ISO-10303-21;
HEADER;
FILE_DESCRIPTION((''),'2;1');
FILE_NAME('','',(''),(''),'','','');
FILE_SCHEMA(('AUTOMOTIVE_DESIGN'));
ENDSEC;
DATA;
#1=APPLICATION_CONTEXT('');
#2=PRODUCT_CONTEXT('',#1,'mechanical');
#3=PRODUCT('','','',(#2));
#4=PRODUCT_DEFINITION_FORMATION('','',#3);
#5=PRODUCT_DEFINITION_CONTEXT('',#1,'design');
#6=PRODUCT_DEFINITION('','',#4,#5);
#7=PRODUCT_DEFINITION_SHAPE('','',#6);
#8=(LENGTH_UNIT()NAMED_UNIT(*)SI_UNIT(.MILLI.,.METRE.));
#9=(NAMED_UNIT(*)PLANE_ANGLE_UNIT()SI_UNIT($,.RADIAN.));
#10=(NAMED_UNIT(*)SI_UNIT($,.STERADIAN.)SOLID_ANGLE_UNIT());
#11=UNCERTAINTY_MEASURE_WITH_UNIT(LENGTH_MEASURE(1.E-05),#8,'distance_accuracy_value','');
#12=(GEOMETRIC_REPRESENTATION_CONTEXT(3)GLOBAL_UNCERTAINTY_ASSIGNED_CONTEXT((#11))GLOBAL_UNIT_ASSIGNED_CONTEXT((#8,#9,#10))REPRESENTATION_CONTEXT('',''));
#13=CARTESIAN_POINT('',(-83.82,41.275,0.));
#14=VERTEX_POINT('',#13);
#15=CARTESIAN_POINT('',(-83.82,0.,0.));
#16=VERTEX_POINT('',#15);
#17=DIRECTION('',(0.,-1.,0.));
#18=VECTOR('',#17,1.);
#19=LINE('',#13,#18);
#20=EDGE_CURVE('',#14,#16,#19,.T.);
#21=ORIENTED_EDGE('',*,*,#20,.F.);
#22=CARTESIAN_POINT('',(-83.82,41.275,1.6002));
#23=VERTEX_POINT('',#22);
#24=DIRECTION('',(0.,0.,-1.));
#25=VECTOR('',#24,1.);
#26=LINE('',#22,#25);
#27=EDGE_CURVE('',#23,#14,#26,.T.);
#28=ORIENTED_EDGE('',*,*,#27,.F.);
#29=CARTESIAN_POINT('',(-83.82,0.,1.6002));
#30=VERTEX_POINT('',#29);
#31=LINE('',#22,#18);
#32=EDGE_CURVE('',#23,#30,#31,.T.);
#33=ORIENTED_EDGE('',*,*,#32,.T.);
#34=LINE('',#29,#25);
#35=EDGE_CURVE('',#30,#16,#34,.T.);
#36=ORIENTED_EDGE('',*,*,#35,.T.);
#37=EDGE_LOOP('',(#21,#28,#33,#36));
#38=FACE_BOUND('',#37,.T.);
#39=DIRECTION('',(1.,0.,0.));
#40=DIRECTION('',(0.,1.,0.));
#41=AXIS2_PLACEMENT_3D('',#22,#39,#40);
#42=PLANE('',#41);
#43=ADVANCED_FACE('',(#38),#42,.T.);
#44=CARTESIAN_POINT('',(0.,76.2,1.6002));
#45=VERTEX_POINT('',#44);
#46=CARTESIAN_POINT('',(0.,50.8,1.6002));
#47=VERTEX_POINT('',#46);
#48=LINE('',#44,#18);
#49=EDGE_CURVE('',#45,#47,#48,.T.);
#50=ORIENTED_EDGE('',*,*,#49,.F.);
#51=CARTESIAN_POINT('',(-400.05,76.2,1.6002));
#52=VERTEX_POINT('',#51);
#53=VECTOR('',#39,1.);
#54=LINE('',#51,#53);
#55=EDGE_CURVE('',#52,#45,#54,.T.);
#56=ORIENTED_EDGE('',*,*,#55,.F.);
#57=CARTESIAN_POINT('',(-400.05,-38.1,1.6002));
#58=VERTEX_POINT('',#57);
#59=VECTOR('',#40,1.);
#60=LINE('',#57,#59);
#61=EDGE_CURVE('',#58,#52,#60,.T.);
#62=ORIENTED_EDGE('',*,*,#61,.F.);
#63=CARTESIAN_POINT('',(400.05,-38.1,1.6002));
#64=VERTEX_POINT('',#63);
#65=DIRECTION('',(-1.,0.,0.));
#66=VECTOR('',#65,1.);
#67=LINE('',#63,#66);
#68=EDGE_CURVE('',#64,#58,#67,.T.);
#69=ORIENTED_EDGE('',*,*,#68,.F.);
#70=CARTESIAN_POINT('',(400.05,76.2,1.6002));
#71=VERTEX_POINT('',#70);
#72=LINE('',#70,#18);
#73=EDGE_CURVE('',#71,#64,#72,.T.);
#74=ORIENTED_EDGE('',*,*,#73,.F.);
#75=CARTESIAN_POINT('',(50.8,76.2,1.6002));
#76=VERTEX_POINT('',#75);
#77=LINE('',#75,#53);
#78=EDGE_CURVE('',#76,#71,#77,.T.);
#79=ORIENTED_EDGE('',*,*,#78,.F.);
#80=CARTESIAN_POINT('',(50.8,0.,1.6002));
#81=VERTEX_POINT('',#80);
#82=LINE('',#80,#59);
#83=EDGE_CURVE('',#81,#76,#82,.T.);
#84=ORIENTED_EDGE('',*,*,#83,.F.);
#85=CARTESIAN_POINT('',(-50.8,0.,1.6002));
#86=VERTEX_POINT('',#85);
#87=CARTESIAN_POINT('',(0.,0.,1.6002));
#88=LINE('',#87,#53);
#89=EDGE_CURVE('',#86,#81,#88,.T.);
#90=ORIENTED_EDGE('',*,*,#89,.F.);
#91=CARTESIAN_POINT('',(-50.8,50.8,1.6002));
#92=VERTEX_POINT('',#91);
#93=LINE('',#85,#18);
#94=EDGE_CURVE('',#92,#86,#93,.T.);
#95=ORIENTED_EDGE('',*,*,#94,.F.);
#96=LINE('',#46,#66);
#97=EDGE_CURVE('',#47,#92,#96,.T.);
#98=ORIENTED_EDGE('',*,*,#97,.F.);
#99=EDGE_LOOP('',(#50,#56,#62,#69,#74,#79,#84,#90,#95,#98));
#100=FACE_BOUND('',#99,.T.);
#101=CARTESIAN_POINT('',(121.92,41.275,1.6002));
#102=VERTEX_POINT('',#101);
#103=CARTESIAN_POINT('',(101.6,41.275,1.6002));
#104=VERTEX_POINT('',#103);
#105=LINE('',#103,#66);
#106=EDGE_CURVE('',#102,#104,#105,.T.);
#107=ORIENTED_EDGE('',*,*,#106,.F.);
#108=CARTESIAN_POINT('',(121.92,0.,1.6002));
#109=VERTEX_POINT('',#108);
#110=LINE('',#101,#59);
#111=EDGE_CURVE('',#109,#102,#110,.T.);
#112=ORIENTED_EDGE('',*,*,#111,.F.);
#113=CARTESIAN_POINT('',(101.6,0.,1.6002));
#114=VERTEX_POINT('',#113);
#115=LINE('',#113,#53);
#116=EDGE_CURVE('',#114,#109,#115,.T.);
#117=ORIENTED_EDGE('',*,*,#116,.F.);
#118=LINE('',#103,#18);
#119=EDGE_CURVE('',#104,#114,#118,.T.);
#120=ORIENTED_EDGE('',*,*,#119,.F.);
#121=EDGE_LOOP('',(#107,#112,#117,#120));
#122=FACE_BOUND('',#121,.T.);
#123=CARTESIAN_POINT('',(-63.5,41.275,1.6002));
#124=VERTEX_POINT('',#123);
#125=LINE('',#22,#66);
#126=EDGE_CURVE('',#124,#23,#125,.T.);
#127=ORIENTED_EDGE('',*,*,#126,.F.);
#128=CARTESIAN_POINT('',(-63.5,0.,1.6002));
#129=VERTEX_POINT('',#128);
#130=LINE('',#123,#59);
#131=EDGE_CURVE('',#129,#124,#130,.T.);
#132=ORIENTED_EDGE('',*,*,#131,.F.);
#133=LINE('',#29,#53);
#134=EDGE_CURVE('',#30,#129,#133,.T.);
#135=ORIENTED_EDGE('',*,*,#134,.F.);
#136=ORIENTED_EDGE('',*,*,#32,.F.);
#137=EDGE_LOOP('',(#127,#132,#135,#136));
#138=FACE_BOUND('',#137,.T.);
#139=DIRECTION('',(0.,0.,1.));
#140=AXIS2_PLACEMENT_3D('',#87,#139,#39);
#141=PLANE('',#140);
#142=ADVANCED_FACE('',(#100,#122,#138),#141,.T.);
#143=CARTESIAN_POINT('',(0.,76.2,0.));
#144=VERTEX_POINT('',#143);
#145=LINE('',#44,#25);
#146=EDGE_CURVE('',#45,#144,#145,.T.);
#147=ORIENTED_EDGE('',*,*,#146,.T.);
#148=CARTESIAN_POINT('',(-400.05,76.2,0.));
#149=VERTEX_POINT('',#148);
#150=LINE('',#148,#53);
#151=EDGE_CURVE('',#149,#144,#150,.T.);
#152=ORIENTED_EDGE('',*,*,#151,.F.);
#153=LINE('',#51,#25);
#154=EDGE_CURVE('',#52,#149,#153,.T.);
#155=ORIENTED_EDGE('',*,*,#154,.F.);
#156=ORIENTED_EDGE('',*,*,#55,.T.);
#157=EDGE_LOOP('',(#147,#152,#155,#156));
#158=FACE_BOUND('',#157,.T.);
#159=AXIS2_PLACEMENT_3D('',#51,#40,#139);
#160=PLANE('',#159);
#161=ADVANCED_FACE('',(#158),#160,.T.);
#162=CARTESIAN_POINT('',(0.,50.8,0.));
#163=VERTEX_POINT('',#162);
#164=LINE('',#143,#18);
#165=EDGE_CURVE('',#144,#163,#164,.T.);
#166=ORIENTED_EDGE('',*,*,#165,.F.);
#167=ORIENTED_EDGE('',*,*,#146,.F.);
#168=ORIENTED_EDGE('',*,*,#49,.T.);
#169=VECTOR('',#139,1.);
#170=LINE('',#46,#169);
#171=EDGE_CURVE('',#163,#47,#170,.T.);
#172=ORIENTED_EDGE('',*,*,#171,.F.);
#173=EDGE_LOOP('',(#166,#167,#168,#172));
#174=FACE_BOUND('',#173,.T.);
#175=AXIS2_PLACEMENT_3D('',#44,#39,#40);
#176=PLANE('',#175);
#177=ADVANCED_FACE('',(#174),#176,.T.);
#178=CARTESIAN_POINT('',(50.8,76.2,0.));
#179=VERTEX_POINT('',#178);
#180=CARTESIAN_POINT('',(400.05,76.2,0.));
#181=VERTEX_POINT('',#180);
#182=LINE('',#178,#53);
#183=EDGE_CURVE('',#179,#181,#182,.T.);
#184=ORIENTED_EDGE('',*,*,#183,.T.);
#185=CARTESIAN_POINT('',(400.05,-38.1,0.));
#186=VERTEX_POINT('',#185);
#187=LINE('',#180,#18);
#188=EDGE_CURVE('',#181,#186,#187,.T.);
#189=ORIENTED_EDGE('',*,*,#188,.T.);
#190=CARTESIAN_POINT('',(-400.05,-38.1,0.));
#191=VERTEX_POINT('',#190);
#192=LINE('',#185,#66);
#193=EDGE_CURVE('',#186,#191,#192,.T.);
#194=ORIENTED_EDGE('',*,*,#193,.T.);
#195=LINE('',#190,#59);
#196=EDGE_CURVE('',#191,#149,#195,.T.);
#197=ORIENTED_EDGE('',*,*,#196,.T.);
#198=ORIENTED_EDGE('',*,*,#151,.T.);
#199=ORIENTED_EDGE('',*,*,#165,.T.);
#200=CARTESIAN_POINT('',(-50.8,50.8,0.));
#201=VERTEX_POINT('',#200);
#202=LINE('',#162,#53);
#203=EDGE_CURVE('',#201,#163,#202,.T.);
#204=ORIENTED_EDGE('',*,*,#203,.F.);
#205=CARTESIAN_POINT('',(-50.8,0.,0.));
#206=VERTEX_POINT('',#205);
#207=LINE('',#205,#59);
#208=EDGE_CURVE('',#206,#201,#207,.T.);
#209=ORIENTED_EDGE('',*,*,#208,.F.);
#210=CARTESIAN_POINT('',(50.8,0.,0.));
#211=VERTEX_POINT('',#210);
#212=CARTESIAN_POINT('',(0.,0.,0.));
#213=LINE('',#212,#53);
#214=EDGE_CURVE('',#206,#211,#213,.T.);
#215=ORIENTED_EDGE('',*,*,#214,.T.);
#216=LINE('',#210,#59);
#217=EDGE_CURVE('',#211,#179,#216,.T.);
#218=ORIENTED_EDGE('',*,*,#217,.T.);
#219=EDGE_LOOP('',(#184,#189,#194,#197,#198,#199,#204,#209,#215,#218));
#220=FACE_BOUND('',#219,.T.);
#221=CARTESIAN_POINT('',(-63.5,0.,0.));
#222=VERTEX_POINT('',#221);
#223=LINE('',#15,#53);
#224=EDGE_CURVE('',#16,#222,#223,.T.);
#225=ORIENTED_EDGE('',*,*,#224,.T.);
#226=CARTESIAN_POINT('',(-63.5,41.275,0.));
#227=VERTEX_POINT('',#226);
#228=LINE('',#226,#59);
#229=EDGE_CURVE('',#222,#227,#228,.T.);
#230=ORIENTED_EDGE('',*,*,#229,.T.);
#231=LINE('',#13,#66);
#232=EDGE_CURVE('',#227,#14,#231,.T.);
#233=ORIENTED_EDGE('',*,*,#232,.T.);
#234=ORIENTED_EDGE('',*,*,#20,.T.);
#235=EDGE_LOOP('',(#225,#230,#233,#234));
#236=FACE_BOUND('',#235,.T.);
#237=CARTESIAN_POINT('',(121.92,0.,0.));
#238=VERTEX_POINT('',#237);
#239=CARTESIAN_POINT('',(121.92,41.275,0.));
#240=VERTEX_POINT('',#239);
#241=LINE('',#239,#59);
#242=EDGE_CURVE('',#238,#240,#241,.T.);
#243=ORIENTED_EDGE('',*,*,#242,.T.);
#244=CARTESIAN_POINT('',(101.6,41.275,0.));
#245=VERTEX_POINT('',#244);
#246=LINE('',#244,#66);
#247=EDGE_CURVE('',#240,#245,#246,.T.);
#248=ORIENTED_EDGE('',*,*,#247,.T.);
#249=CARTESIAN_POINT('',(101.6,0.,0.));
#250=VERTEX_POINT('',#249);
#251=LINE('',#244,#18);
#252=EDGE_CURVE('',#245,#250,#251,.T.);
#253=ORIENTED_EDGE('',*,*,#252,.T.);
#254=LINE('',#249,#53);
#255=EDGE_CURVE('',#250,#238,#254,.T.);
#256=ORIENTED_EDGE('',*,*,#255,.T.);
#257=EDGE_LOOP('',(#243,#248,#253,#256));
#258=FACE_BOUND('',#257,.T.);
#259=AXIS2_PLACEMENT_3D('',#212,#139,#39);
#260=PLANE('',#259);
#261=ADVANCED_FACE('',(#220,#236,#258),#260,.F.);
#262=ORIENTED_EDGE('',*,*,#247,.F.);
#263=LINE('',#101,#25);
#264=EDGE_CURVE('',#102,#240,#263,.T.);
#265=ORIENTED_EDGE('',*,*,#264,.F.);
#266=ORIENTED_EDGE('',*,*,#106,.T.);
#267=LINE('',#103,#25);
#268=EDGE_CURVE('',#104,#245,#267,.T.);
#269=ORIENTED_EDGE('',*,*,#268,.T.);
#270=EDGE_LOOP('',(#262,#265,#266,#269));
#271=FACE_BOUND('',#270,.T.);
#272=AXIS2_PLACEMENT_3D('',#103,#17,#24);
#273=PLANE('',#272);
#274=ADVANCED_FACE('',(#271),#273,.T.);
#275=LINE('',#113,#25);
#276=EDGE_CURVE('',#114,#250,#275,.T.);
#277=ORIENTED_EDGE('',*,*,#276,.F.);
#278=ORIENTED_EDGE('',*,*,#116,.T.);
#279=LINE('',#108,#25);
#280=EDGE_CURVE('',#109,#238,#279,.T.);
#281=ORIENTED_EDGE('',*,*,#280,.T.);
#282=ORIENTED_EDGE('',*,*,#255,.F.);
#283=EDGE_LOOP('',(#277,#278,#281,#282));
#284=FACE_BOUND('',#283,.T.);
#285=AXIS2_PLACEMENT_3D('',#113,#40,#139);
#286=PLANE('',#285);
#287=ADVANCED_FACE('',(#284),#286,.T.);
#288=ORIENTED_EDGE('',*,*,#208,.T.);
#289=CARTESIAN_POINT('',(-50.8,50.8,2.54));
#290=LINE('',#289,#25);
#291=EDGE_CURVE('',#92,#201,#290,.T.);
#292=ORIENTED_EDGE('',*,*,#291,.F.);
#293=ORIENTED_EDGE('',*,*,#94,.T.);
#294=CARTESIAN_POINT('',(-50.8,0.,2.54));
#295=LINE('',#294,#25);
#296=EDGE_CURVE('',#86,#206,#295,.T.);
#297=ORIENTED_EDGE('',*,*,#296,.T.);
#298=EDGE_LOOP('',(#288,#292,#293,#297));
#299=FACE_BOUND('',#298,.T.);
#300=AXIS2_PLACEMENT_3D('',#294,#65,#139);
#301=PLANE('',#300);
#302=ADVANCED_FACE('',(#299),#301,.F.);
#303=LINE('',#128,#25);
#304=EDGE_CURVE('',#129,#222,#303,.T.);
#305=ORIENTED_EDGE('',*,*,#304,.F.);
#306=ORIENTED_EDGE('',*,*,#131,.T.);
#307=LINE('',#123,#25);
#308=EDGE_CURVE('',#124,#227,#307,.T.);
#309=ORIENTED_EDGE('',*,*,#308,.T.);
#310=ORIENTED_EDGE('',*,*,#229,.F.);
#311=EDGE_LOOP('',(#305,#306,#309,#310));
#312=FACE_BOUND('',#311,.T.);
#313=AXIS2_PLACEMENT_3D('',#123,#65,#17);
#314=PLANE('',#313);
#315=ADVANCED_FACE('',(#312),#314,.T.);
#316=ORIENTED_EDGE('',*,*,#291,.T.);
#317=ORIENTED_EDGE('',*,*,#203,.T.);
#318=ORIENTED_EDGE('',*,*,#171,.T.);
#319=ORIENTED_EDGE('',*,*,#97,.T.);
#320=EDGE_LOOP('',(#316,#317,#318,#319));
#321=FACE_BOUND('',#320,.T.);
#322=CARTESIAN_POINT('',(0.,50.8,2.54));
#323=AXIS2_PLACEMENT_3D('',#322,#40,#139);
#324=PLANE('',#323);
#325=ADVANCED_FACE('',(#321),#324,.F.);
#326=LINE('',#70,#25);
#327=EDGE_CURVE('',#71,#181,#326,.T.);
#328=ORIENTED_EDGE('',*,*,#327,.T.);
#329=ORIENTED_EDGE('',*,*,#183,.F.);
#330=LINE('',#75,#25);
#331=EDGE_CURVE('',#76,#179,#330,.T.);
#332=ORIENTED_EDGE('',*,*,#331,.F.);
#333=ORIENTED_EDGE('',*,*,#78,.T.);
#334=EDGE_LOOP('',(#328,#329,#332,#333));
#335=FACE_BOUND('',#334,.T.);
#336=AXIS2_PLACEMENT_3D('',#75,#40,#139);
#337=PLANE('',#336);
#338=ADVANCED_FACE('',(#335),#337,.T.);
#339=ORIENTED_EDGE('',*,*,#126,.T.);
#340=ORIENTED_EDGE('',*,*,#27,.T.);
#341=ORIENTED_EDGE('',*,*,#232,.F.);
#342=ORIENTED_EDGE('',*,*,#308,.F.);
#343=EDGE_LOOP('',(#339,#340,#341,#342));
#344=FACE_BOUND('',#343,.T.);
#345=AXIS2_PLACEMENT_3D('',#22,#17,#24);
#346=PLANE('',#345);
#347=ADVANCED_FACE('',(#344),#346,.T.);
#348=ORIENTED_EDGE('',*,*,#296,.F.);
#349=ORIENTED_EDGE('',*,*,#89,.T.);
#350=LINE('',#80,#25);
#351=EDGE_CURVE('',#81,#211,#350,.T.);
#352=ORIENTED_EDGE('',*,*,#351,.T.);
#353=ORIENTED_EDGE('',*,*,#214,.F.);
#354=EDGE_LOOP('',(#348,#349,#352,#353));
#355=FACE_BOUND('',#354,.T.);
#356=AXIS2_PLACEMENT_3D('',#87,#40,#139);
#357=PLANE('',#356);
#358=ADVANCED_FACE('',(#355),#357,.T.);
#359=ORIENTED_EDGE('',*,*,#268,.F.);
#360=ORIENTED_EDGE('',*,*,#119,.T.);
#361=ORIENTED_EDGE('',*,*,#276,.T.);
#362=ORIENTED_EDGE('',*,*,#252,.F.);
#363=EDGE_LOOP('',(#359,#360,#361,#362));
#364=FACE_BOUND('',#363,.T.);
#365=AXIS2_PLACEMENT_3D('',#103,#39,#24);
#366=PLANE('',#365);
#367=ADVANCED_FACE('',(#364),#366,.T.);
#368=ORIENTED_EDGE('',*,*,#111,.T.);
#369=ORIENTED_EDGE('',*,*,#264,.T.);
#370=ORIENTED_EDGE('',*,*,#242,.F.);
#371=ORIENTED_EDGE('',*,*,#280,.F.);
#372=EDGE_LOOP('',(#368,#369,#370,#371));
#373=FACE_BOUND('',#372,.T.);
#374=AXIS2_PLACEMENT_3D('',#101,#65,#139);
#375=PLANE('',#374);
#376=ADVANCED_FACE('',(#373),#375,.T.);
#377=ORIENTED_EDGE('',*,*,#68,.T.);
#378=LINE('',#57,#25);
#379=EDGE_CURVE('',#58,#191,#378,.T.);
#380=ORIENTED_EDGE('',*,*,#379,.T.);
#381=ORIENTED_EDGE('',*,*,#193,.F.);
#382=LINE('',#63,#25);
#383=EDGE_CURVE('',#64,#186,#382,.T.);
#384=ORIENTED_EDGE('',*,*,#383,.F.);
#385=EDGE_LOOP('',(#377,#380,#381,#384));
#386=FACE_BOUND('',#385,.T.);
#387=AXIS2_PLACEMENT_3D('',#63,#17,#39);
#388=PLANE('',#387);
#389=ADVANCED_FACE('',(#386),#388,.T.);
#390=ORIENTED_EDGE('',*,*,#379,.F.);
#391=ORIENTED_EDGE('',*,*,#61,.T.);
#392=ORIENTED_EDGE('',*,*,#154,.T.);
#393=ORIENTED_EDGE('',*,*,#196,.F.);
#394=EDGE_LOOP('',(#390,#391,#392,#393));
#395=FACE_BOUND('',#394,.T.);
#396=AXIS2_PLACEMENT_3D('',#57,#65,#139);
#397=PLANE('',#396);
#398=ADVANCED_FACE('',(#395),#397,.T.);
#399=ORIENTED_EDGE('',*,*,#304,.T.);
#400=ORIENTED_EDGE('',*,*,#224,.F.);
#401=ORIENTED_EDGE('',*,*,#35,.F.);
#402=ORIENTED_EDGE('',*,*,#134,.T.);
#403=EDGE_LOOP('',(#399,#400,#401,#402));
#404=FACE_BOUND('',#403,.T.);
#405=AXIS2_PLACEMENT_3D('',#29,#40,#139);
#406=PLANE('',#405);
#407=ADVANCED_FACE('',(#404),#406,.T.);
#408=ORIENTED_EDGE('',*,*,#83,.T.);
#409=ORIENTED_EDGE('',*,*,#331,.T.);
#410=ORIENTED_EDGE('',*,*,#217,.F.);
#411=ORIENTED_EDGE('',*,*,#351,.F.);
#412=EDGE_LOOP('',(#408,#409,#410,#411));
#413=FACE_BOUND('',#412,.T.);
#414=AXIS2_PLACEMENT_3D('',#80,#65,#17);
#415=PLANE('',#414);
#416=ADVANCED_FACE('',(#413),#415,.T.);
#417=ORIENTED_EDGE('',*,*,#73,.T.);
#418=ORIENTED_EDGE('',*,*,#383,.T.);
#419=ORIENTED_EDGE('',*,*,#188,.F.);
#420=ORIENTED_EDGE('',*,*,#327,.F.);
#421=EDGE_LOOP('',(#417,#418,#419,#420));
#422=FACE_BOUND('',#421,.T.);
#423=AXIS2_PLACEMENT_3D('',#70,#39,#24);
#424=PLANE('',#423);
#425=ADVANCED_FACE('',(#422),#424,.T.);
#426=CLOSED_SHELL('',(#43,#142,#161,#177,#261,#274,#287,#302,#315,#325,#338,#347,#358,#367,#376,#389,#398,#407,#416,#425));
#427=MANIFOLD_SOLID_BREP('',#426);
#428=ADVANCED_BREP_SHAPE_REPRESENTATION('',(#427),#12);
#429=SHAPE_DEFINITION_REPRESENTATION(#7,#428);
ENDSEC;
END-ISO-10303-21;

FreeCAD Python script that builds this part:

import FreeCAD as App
import Part
import Sketcher
from FreeCAD import Vector
Q = App.Units.Quantity

doc = App.newDocument("Part")
body = doc.addObject("PartDesign::Body", "Body")

# Sketch on XY plane
sketch1 = body.newObject("Sketcher::SketchObject", "Sketch")
sketch1.AttachmentSupport = (doc.getObject("XY_Plane"), [""])
sketch1.MapMode = "FlatFace"
sketch1.addGeometry([
    Part.LineSegment(Vector(50.8, 0, 0), Vector(0, 0, 0)),  # 0
    Part.LineSegment(Vector(0, 0, 0), Vector(0, 76.2, 0)),  # 1
    Part.LineSegment(Vector(0, 76.2, 0), Vector(-400.05, 76.2, 0)),  # 2
    Part.LineSegment(Vector(-400.05, 76.2, 0), Vector(-400.05, -38.1, 0)),  # 3
    Part.LineSegment(Vector(-400.05, -38.1, 0), Vector(400.05, -38.1, 0)),  # 4
    Part.LineSegment(Vector(400.05, -38.1, 0), Vector(400.05, 76.2, 0)),  # 5
    Part.LineSegment(Vector(400.05, 76.2, 0), Vector(50.8, 76.2, 0)),  # 6
    Part.LineSegment(Vector(50.8, 76.2, 0), Vector(50.8, 0, 0)),  # 7
], False)
sketch1.addConstraint([
    Sketcher.Constraint("Coincident", 0, 2, 1, 1),
    Sketcher.Constraint("Coincident", 1, 2, 2, 1),
    Sketcher.Constraint("Coincident", 2, 2, 3, 1),
    Sketcher.Constraint("Coincident", 3, 2, 4, 1),
    Sketcher.Constraint("Coincident", 4, 2, 5, 1),
    Sketcher.Constraint("Coincident", 5, 2, 6, 1),
    Sketcher.Constraint("Coincident", 6, 2, 7, 1),
    Sketcher.Constraint("Coincident", 7, 2, 0, 1),
    Sketcher.Constraint("Horizontal", 0),
    Sketcher.Constraint("Vertical", 1),
    Sketcher.Constraint("Horizontal", 2),
    Sketcher.Constraint("Vertical", 3),
    Sketcher.Constraint("Horizontal", 4),
    Sketcher.Constraint("Vertical", 5),
    Sketcher.Constraint("Horizontal", 6),
    Sketcher.Constraint("Vertical", 7),
    Sketcher.Constraint("Coincident", 0, 2, -1, 1),
    Sketcher.Constraint("Symmetric", 2, 2, 5, 2, -2),
    Sketcher.Constraint("DistanceX", 0, 2, 0, 1, Q("2 in")),
    Sketcher.Constraint("DistanceY", 1, 1, 1, 2, Q("3 in")),
    Sketcher.Constraint("DistanceX", 4, 1, 4, 2, Q("31.5 in")),
    Sketcher.Constraint("DistanceY", 3, 2, 3, 1, Q("4.5 in")),
])
pad1 = body.newObject("PartDesign::Pad", "Pad")
pad1.Profile = sketch1
pad1.Length = Q("0.063 in")

# Sketch on XY plane
sketch2 = body.newObject("Sketcher::SketchObject", "Sketch001")
sketch2.AttachmentSupport = (doc.getObject("XY_Plane"), [""])
sketch2.MapMode = "FlatFace"
sketch2.addGeometry([
    Part.LineSegment(Vector(-83.82, 41.275, 0), Vector(-83.82, 0, 0)),  # 0
    Part.LineSegment(Vector(-83.82, 0, 0), Vector(-63.5, 0, 0)),  # 1
    Part.LineSegment(Vector(-63.5, 0, 0), Vector(-63.5, 41.275, 0)),  # 2
    Part.LineSegment(Vector(-63.5, 41.275, 0), Vector(-83.82, 41.275, 0)),  # 3
    Part.LineSegment(Vector(101.6, 41.275, 0), Vector(101.6, 0, 0)),  # 4
    Part.LineSegment(Vector(101.6, 0, 0), Vector(121.92, 0, 0)),  # 5
    Part.LineSegment(Vector(121.92, 0, 0), Vector(121.92, 41.275, 0)),  # 6
    Part.LineSegment(Vector(121.92, 41.275, 0), Vector(101.6, 41.275, 0)),  # 7
], False)
sketch2.addConstraint([
    Sketcher.Constraint("Coincident", 0, 2, 1, 1),
    Sketcher.Constraint("Coincident", 1, 2, 2, 1),
    Sketcher.Constraint("Coincident", 2, 2, 3, 1),
    Sketcher.Constraint("Coincident", 3, 2, 0, 1),
    Sketcher.Constraint("Coincident", 4, 2, 5, 1),
    Sketcher.Constraint("Coincident", 5, 2, 6, 1),
    Sketcher.Constraint("Coincident", 6, 2, 7, 1),
    Sketcher.Constraint("Coincident", 7, 2, 4, 1),
    Sketcher.Constraint("Vertical", 0),
    Sketcher.Constraint("Horizontal", 1),
    Sketcher.Constraint("Vertical", 2),
    Sketcher.Constraint("Horizontal", 3),
    Sketcher.Constraint("Vertical", 4),
    Sketcher.Constraint("Horizontal", 5),
    Sketcher.Constraint("Vertical", 6),
    Sketcher.Constraint("Horizontal", 7),
    Sketcher.Constraint("PointOnObject", 0, 2, -1),
    Sketcher.Constraint("PointOnObject", 4, 2, -1),
    Sketcher.Constraint("Horizontal", 3, 2, 6, 2),
    Sketcher.Constraint("Equal", 3, 5),
    Sketcher.Constraint("DistanceX", 1, 1, 1, 2, Q("0.8 in")),
    Sketcher.Constraint("DistanceX", -1, 1, 4, 2, Q("4 in")),
    Sketcher.Constraint("DistanceX", 0, 2, -1, 1, Q("3.3 in")),
    Sketcher.Constraint("DistanceY", 0, 2, 0, 1, Q("1.625 in")),
])
pocket1 = body.newObject("PartDesign::Pocket", "Pocket")
pocket1.Profile = sketch2
pocket1.Type = "ThroughAll"
pocket1.Reversed = True

# Sketch on XY plane
sketch3 = body.newObject("Sketcher::SketchObject", "Sketch002")
sketch3.AttachmentSupport = (doc.getObject("XY_Plane"), [""])
sketch3.MapMode = "FlatFace"
sketch3.addGeometry([
    Part.LineSegment(Vector(0, 50.8, 0), Vector(0, 0, 0)),
    Part.LineSegment(Vector(0, 0, 0), Vector(-50.8, 0, 0)),
    Part.LineSegment(Vector(-50.8, 0, 0), Vector(-50.8, 50.8, 0)),
    Part.LineSegment(Vector(-50.8, 50.8, 0), Vector(0, 50.8, 0)),
], False)
sketch3.addConstraint([
    Sketcher.Constraint("Coincident", 0, 2, 1, 1),
    Sketcher.Constraint("Coincident", 1, 2, 2, 1),
    Sketcher.Constraint("Coincident", 2, 2, 3, 1),
    Sketcher.Constraint("Coincident", 3, 2, 0, 1),
    Sketcher.Constraint("Vertical", 0),
    Sketcher.Constraint("Horizontal", 1),
    Sketcher.Constraint("Vertical", 2),
    Sketcher.Constraint("Horizontal", 3),
    Sketcher.Constraint("Coincident", 0, 2, -1, 1),
    Sketcher.Constraint("Equal", 3, 0),
    Sketcher.Constraint("DistanceX", 1, 2, 1, 1, Q("2 in")),
])
pocket2 = body.newObject("PartDesign::Pocket", "Pocket001")
pocket2.Profile = sketch3
pocket2.Length = Q("0.1 in")
pocket2.Reversed = True

doc.recompute()
